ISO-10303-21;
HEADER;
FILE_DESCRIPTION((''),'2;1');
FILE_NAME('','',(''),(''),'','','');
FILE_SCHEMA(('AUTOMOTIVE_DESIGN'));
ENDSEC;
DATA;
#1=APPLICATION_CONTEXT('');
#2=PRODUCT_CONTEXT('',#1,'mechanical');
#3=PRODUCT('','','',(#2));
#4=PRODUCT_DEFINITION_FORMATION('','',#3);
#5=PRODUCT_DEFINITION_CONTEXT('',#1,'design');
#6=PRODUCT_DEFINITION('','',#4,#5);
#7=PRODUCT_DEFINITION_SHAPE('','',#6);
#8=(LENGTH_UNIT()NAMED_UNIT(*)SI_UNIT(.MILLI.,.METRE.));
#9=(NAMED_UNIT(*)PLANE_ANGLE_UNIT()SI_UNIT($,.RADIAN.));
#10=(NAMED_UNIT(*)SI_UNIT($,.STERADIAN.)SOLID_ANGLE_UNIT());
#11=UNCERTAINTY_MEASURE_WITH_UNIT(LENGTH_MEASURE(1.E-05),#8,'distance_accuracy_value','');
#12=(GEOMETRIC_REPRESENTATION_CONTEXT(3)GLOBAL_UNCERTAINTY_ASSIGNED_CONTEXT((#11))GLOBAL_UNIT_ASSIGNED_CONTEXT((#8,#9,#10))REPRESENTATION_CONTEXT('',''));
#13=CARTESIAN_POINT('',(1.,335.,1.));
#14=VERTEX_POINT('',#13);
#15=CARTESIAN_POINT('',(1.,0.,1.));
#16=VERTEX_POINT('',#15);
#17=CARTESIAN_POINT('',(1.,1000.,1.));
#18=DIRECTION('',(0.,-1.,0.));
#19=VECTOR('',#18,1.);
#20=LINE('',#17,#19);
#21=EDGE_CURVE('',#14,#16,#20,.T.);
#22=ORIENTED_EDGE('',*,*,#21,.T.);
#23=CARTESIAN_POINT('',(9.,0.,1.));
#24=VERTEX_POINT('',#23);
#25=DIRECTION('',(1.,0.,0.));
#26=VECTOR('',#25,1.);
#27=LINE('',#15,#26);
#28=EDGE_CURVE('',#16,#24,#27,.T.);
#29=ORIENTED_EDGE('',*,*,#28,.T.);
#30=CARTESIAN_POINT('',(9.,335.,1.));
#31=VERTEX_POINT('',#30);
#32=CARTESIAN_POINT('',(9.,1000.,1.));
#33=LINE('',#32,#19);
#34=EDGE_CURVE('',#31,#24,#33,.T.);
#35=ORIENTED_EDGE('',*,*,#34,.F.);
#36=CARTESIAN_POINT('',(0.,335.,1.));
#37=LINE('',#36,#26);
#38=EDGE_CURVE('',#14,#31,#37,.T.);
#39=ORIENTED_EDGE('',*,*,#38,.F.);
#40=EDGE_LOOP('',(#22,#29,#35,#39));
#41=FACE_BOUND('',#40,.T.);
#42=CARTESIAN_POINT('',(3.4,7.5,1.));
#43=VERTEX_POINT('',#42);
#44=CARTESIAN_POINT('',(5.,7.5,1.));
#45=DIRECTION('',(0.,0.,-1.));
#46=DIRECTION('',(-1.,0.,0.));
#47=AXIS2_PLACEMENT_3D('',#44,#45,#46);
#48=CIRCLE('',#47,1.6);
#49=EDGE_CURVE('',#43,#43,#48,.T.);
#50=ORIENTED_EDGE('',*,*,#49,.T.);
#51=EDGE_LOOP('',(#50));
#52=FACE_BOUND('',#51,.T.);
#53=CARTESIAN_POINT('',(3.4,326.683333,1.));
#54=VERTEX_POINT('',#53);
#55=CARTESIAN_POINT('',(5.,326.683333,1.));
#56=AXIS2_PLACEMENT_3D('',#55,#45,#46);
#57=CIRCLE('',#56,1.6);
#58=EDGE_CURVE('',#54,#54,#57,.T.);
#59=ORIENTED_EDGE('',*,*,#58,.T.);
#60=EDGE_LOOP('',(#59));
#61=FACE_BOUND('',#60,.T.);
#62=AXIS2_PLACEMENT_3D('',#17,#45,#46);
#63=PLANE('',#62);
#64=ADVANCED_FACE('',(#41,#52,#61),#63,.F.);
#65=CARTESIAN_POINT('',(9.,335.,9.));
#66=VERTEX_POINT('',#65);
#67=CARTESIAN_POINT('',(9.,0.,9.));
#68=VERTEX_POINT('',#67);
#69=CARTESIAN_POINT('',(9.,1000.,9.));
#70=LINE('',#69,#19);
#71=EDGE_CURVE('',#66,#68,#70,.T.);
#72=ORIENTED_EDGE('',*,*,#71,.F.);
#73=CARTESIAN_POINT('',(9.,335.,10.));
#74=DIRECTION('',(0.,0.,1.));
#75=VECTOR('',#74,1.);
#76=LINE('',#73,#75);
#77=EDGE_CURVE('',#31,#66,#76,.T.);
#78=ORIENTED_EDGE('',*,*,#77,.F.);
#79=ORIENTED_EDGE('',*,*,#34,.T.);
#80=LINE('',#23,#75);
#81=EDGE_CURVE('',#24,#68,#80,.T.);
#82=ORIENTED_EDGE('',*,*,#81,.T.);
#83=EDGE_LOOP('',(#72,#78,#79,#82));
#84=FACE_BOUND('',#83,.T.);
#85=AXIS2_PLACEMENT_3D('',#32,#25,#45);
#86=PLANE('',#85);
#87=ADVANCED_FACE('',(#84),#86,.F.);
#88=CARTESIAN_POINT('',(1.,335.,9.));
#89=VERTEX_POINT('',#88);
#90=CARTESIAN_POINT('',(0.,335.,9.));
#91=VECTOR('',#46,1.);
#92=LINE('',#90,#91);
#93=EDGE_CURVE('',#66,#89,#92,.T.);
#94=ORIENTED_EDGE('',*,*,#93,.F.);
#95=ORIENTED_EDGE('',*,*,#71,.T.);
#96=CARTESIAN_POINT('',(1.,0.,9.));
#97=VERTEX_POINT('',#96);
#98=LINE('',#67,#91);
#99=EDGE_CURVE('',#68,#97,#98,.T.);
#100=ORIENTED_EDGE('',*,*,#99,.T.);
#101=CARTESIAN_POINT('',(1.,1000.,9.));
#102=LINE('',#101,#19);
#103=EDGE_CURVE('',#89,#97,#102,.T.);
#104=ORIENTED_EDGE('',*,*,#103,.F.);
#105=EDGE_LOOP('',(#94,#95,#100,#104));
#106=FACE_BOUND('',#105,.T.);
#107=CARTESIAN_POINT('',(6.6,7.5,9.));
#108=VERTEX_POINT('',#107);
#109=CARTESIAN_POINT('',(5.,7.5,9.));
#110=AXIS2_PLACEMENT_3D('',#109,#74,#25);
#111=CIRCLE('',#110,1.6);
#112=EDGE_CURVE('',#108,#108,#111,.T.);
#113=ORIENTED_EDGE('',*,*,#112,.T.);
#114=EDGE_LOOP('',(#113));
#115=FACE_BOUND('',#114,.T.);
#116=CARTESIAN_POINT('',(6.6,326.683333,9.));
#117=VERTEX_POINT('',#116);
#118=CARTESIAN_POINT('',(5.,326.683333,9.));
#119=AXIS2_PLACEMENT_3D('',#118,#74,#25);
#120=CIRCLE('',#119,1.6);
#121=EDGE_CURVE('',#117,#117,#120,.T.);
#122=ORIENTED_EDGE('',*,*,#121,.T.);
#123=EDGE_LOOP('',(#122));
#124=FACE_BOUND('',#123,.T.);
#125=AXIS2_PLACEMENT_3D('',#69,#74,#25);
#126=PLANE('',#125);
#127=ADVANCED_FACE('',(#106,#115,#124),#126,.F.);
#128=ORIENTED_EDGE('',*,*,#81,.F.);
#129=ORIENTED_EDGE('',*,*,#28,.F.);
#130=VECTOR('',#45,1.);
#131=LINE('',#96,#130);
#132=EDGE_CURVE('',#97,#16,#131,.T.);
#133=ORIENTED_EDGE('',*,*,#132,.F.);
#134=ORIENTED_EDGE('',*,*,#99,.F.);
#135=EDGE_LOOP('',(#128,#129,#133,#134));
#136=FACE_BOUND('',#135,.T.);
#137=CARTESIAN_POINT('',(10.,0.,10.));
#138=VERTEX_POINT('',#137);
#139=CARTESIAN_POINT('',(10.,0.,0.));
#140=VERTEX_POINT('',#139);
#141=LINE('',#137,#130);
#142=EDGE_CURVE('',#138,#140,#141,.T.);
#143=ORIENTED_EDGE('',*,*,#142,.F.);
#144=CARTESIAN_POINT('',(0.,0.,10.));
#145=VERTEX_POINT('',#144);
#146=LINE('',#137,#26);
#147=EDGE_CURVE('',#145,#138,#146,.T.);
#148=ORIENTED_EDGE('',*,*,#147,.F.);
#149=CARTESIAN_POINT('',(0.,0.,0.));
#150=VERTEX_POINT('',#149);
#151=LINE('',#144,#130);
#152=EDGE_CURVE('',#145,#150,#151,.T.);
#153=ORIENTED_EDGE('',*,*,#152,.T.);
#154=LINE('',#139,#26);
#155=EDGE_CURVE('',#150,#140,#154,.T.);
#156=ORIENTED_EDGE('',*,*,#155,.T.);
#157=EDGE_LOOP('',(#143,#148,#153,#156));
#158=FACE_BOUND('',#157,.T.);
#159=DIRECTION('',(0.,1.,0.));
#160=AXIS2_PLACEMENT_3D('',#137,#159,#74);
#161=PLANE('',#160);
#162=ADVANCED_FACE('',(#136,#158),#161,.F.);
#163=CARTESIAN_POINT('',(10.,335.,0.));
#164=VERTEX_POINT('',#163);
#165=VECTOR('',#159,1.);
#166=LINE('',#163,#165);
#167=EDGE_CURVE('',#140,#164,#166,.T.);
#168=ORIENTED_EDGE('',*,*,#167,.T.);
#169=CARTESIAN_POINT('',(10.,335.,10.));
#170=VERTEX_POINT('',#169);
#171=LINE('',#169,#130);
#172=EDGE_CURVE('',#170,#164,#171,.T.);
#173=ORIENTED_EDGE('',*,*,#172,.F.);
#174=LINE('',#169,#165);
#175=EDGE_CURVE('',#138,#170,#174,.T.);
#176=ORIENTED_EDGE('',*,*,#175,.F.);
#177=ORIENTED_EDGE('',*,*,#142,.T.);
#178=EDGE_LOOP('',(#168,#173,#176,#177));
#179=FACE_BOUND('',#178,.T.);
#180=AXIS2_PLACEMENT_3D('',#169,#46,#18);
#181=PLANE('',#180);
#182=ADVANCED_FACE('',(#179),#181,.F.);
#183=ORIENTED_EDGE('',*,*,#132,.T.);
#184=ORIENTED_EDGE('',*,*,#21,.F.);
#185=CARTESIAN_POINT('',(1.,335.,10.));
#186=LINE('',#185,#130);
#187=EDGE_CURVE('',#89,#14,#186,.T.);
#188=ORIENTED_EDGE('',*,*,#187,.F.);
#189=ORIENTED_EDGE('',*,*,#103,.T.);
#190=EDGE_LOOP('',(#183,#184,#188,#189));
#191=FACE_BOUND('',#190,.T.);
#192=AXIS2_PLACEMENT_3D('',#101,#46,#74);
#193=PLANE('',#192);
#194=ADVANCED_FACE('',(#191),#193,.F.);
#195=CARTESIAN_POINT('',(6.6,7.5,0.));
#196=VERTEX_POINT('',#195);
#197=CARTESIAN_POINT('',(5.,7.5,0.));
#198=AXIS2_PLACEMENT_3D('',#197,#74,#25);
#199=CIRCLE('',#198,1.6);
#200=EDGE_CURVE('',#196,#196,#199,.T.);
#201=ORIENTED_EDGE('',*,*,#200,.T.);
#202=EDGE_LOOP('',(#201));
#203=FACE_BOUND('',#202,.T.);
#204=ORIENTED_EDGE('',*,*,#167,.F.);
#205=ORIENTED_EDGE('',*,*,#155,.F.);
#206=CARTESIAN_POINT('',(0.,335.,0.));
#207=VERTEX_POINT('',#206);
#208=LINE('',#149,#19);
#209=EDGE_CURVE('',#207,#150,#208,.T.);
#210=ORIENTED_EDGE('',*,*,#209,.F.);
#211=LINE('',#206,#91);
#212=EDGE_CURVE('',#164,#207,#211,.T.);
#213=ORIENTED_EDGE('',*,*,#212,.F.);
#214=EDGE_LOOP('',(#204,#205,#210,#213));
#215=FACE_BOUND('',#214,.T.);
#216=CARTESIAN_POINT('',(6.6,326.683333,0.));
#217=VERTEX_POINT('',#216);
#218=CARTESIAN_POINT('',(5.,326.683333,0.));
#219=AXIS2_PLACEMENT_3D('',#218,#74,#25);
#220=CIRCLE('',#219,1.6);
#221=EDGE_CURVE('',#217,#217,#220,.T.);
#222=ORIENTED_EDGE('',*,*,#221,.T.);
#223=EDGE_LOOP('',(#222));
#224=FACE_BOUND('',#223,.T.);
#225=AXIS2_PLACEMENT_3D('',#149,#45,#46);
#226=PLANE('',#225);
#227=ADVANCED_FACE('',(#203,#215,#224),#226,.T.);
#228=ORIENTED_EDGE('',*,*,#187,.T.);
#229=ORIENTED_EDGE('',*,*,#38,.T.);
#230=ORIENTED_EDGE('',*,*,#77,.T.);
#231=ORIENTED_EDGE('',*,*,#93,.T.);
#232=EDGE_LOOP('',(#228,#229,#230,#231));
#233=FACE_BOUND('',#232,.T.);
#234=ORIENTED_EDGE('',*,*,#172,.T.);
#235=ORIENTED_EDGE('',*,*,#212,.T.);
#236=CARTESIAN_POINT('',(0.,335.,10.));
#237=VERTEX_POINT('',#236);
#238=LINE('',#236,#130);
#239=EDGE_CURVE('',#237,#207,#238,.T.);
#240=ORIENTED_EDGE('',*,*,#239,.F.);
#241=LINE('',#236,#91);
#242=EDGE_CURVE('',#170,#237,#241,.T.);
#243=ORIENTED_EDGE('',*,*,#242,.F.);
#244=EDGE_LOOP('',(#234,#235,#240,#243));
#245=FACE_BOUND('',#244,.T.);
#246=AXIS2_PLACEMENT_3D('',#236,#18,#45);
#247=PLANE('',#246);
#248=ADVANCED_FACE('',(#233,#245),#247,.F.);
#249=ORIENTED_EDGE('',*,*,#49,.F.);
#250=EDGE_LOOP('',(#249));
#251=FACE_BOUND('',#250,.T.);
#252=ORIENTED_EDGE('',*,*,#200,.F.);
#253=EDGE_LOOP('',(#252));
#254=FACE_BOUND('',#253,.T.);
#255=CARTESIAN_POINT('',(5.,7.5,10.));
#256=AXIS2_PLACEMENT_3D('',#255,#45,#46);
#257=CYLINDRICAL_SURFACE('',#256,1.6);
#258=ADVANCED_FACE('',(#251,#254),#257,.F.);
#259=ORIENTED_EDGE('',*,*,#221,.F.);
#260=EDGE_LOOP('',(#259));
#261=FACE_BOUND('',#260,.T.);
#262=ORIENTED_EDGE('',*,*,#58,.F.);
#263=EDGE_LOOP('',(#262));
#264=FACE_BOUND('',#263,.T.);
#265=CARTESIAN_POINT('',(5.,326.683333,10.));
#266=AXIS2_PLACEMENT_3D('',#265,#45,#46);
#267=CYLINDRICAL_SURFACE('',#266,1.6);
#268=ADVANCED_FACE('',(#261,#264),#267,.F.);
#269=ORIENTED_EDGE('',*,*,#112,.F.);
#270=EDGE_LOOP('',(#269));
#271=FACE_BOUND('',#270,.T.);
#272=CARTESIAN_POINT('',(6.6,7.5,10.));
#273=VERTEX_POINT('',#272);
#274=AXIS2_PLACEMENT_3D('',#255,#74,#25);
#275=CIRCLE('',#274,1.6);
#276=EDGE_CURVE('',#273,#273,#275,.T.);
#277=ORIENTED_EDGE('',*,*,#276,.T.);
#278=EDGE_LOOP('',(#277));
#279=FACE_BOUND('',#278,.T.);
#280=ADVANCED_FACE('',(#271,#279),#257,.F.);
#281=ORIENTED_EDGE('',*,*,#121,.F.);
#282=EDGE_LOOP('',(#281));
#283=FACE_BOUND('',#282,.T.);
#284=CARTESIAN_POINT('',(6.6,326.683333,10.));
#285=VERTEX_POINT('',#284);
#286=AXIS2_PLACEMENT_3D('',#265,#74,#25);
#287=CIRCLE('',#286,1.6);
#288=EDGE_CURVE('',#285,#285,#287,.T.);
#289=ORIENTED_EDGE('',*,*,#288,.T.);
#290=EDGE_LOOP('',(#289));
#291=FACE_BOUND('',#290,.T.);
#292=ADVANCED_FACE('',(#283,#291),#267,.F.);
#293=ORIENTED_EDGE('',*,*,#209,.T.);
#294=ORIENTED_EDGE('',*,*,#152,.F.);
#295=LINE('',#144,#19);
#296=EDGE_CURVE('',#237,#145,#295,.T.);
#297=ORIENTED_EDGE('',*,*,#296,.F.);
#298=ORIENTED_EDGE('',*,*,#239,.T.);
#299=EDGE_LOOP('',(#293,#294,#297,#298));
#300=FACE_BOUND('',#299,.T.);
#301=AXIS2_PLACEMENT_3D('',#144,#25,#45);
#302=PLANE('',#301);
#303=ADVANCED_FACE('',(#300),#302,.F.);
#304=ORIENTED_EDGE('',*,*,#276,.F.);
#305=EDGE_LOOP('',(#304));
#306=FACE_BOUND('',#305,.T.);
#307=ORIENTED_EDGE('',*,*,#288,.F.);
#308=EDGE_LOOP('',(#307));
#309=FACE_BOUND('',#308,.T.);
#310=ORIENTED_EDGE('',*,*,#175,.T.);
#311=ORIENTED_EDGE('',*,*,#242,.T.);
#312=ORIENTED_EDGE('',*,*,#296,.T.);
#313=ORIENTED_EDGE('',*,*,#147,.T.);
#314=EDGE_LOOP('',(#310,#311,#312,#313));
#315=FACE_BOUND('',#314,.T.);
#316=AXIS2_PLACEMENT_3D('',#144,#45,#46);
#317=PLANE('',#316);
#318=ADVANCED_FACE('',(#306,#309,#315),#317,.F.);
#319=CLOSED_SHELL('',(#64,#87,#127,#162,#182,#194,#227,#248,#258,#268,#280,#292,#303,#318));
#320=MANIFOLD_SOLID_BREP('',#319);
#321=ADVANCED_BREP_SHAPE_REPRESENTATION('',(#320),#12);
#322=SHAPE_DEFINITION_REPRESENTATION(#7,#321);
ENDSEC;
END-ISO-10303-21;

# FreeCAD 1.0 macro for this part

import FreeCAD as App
import Part
import Sketcher

V = App.Vector
Q = App.Units.Quantity

doc = App.newDocument("Part")
body = doc.addObject("PartDesign::Body", "Body")

sketch1 = doc.addObject("Sketcher::SketchObject", "Sketch")
body.addObject(sketch1)
sketch1.AttachmentSupport = (doc.XY_Plane, [""])
sketch1.MapMode = "FlatFace"
sketch1.addGeometry(Part.LineSegment(V(0, 335, 0), V(0, 0, 0)), False)
sketch1.addGeometry(Part.LineSegment(V(0, 0, 0), V(10, 0, 0)), False)
sketch1.addGeometry(Part.LineSegment(V(10, 0, 0), V(10, 335, 0)), False)
sketch1.addGeometry(Part.LineSegment(V(10, 335, 0), V(0, 335, 0)), False)
sketch1.addGeometry(Part.Circle(V(5, 7.5, 0), V(0, 0, 1), 1.6), False)
sketch1.addGeometry(Part.Circle(V(5, 326.7, 0), V(0, 0, 1), 1.6), False)
sketch1.addConstraint(Sketcher.Constraint("Coincident", 0, 2, 1, 1))
sketch1.addConstraint(Sketcher.Constraint("Coincident", 1, 2, 2, 1))
sketch1.addConstraint(Sketcher.Constraint("Coincident", 2, 2, 3, 1))
sketch1.addConstraint(Sketcher.Constraint("Coincident", 3, 2, 0, 1))
sketch1.addConstraint(Sketcher.Constraint("Vertical", 0))
sketch1.addConstraint(Sketcher.Constraint("Horizontal", 1))
sketch1.addConstraint(Sketcher.Constraint("Vertical", 2))
sketch1.addConstraint(Sketcher.Constraint("Horizontal", 3))
sketch1.addConstraint(Sketcher.Constraint("Coincident", 0, 2, -1, 1))
sketch1.addConstraint(Sketcher.Constraint("Equal", 4, 5))
sketch1.addConstraint(Sketcher.Constraint("Vertical", 4, 3, 5, 3))
sketch1.addConstraint(Sketcher.Constraint("Diameter", 4, Q("3.2 mm")))
sketch1.addConstraint(Sketcher.Constraint("DistanceX", 1, 1, 1, 2, Q("10 mm")))
sketch1.addConstraint(Sketcher.Constraint("DistanceY", 0, 2, 0, 1, Q("335 mm")))
sketch1.addConstraint(Sketcher.Constraint("DistanceX", -1, 1, 4, 3, Q("5 mm")))
sketch1.addConstraint(Sketcher.Constraint("DistanceY", -1, 1, 4, 3, Q("7.5 mm")))
sketch1.addConstraint(Sketcher.Constraint("DistanceY", -1, 1, 5, 3, Q("326.683333 mm")))
pad1 = doc.addObject("PartDesign::Pad", "Pad")
body.addObject(pad1)
pad1.Profile = sketch1
pad1.Length = 10

sketch2 = doc.addObject("Sketcher::SketchObject", "Sketch001")
body.addObject(sketch2)
sketch2.AttachmentSupport = (doc.XZ_Plane, [""])
sketch2.MapMode = "FlatFace"
sketch2.addGeometry(Part.LineSegment(V(1, 9, 0), V(1, 1, 0)), False)
sketch2.addGeometry(Part.LineSegment(V(1, 1, 0), V(9, 1, 0)), False)
sketch2.addGeometry(Part.LineSegment(V(9, 1, 0), V(9, 9, 0)), False)
sketch2.addGeometry(Part.LineSegment(V(9, 9, 0), V(1, 9, 0)), False)
sketch2.addConstraint(Sketcher.Constraint("Coincident", 0, 2, 1, 1))
sketch2.addConstraint(Sketcher.Constraint("Coincident", 1, 2, 2, 1))
sketch2.addConstraint(Sketcher.Constraint("Coincident", 2, 2, 3, 1))
sketch2.addConstraint(Sketcher.Constraint("Coincident", 3, 2, 0, 1))
sketch2.addConstraint(Sketcher.Constraint("Vertical", 0))
sketch2.addConstraint(Sketcher.Constraint("Horizontal", 1))
sketch2.addConstraint(Sketcher.Constraint("Vertical", 2))
sketch2.addConstraint(Sketcher.Constraint("Horizontal", 3))
sketch2.addConstraint(Sketcher.Constraint("Equal", 3, 0))
sketch2.addConstraint(Sketcher.Constraint("DistanceX", 1, 1, 1, 2, Q("8 mm")))
sketch2.addConstraint(Sketcher.Constraint("DistanceX", -1, 1, 0, 2, Q("1 mm")))
sketch2.addConstraint(Sketcher.Constraint("DistanceY", -1, 1, 0, 2, Q("1 mm")))
pocket1 = doc.addObject("PartDesign::Pocket", "Pocket")
body.addObject(pocket1)
pocket1.Profile = sketch2
pocket1.Length = 1000

doc.recompute()
